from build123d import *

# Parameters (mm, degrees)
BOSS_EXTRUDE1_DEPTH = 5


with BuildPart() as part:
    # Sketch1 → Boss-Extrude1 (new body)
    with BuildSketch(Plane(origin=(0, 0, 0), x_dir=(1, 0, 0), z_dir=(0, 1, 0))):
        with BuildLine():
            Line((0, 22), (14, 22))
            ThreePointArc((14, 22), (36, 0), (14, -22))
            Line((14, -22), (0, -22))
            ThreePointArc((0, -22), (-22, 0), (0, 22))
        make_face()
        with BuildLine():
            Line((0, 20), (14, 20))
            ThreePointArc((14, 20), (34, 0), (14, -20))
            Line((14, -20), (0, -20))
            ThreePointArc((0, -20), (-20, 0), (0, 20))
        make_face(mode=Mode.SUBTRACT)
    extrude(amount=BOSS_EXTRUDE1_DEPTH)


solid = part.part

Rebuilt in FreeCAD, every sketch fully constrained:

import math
import FreeCAD as App
import Part
import Sketcher

doc = App.newDocument("Part")
body = doc.addObject("PartDesign::Body", "Body")

sketch1 = body.newObject("Sketcher::SketchObject", "Sketch")
sketch1.AttachmentSupport = (doc.getObject("XZ_Plane"), [""])
sketch1.MapMode = "FlatFace"
sketch1.addGeometry([
    Part.LineSegment(App.Vector(14, -22, 0), App.Vector(0, -22, 0)),
    Part.ArcOfCircle(Part.Circle(App.Vector(0, 0, 0), App.Vector(0, 0, 1), 22), math.radians(90), math.radians(270)),
    Part.LineSegment(App.Vector(0, 22, 0), App.Vector(14, 22, 0)),
    Part.ArcOfCircle(Part.Circle(App.Vector(14, 0, 0), App.Vector(0, 0, 1), 22), math.radians(-90), math.radians(90)),
    Part.LineSegment(App.Vector(0, -20, 0), App.Vector(14, -20, 0)),
    Part.ArcOfCircle(Part.Circle(App.Vector(14, 0, 0), App.Vector(0, 0, 1), 20), math.radians(-90), math.radians(90)),
    Part.LineSegment(App.Vector(14, 20, 0), App.Vector(0, 20, 0)),
    Part.ArcOfCircle(Part.Circle(App.Vector(0, 0, 0), App.Vector(0, 0, 1), 20), math.radians(90), math.radians(270)),
], False)
sketch1.addConstraint([
    Sketcher.Constraint("Tangent", 0, 2, 1, 2),
    Sketcher.Constraint("Tangent", 1, 1, 2, 1),
    Sketcher.Constraint("Tangent", 2, 2, 3, 2),
    Sketcher.Constraint("Tangent", 3, 1, 0, 1),
    Sketcher.Constraint("Tangent", 4, 2, 5, 1),
    Sketcher.Constraint("Tangent", 5, 2, 6, 1),
    Sketcher.Constraint("Tangent", 6, 2, 7, 1),
    Sketcher.Constraint("Tangent", 7, 2, 4, 1),
    Sketcher.Constraint("Horizontal", 0),
    Sketcher.Constraint("Horizontal", 2),
    Sketcher.Constraint("Horizontal", 4),
    Sketcher.Constraint("Horizontal", 6),
    Sketcher.Constraint("Coincident", 1, 3, -1, 1),
    Sketcher.Constraint("Coincident", 7, 3, -1, 1),
    Sketcher.Constraint("Vertical", 5, 3, 2, 2),
    Sketcher.Constraint("Radius", 1, 22.0),
    Sketcher.Constraint("Radius", 5, 20.0),
    Sketcher.Constraint("DistanceX", 0, 2, 0, 1, 14.0),
])
pad1 = body.newObject("PartDesign::Pad", "Pad")
pad1.Profile = sketch1
pad1.Length = 5
pad1.Reversed = True

doc.recompute()
